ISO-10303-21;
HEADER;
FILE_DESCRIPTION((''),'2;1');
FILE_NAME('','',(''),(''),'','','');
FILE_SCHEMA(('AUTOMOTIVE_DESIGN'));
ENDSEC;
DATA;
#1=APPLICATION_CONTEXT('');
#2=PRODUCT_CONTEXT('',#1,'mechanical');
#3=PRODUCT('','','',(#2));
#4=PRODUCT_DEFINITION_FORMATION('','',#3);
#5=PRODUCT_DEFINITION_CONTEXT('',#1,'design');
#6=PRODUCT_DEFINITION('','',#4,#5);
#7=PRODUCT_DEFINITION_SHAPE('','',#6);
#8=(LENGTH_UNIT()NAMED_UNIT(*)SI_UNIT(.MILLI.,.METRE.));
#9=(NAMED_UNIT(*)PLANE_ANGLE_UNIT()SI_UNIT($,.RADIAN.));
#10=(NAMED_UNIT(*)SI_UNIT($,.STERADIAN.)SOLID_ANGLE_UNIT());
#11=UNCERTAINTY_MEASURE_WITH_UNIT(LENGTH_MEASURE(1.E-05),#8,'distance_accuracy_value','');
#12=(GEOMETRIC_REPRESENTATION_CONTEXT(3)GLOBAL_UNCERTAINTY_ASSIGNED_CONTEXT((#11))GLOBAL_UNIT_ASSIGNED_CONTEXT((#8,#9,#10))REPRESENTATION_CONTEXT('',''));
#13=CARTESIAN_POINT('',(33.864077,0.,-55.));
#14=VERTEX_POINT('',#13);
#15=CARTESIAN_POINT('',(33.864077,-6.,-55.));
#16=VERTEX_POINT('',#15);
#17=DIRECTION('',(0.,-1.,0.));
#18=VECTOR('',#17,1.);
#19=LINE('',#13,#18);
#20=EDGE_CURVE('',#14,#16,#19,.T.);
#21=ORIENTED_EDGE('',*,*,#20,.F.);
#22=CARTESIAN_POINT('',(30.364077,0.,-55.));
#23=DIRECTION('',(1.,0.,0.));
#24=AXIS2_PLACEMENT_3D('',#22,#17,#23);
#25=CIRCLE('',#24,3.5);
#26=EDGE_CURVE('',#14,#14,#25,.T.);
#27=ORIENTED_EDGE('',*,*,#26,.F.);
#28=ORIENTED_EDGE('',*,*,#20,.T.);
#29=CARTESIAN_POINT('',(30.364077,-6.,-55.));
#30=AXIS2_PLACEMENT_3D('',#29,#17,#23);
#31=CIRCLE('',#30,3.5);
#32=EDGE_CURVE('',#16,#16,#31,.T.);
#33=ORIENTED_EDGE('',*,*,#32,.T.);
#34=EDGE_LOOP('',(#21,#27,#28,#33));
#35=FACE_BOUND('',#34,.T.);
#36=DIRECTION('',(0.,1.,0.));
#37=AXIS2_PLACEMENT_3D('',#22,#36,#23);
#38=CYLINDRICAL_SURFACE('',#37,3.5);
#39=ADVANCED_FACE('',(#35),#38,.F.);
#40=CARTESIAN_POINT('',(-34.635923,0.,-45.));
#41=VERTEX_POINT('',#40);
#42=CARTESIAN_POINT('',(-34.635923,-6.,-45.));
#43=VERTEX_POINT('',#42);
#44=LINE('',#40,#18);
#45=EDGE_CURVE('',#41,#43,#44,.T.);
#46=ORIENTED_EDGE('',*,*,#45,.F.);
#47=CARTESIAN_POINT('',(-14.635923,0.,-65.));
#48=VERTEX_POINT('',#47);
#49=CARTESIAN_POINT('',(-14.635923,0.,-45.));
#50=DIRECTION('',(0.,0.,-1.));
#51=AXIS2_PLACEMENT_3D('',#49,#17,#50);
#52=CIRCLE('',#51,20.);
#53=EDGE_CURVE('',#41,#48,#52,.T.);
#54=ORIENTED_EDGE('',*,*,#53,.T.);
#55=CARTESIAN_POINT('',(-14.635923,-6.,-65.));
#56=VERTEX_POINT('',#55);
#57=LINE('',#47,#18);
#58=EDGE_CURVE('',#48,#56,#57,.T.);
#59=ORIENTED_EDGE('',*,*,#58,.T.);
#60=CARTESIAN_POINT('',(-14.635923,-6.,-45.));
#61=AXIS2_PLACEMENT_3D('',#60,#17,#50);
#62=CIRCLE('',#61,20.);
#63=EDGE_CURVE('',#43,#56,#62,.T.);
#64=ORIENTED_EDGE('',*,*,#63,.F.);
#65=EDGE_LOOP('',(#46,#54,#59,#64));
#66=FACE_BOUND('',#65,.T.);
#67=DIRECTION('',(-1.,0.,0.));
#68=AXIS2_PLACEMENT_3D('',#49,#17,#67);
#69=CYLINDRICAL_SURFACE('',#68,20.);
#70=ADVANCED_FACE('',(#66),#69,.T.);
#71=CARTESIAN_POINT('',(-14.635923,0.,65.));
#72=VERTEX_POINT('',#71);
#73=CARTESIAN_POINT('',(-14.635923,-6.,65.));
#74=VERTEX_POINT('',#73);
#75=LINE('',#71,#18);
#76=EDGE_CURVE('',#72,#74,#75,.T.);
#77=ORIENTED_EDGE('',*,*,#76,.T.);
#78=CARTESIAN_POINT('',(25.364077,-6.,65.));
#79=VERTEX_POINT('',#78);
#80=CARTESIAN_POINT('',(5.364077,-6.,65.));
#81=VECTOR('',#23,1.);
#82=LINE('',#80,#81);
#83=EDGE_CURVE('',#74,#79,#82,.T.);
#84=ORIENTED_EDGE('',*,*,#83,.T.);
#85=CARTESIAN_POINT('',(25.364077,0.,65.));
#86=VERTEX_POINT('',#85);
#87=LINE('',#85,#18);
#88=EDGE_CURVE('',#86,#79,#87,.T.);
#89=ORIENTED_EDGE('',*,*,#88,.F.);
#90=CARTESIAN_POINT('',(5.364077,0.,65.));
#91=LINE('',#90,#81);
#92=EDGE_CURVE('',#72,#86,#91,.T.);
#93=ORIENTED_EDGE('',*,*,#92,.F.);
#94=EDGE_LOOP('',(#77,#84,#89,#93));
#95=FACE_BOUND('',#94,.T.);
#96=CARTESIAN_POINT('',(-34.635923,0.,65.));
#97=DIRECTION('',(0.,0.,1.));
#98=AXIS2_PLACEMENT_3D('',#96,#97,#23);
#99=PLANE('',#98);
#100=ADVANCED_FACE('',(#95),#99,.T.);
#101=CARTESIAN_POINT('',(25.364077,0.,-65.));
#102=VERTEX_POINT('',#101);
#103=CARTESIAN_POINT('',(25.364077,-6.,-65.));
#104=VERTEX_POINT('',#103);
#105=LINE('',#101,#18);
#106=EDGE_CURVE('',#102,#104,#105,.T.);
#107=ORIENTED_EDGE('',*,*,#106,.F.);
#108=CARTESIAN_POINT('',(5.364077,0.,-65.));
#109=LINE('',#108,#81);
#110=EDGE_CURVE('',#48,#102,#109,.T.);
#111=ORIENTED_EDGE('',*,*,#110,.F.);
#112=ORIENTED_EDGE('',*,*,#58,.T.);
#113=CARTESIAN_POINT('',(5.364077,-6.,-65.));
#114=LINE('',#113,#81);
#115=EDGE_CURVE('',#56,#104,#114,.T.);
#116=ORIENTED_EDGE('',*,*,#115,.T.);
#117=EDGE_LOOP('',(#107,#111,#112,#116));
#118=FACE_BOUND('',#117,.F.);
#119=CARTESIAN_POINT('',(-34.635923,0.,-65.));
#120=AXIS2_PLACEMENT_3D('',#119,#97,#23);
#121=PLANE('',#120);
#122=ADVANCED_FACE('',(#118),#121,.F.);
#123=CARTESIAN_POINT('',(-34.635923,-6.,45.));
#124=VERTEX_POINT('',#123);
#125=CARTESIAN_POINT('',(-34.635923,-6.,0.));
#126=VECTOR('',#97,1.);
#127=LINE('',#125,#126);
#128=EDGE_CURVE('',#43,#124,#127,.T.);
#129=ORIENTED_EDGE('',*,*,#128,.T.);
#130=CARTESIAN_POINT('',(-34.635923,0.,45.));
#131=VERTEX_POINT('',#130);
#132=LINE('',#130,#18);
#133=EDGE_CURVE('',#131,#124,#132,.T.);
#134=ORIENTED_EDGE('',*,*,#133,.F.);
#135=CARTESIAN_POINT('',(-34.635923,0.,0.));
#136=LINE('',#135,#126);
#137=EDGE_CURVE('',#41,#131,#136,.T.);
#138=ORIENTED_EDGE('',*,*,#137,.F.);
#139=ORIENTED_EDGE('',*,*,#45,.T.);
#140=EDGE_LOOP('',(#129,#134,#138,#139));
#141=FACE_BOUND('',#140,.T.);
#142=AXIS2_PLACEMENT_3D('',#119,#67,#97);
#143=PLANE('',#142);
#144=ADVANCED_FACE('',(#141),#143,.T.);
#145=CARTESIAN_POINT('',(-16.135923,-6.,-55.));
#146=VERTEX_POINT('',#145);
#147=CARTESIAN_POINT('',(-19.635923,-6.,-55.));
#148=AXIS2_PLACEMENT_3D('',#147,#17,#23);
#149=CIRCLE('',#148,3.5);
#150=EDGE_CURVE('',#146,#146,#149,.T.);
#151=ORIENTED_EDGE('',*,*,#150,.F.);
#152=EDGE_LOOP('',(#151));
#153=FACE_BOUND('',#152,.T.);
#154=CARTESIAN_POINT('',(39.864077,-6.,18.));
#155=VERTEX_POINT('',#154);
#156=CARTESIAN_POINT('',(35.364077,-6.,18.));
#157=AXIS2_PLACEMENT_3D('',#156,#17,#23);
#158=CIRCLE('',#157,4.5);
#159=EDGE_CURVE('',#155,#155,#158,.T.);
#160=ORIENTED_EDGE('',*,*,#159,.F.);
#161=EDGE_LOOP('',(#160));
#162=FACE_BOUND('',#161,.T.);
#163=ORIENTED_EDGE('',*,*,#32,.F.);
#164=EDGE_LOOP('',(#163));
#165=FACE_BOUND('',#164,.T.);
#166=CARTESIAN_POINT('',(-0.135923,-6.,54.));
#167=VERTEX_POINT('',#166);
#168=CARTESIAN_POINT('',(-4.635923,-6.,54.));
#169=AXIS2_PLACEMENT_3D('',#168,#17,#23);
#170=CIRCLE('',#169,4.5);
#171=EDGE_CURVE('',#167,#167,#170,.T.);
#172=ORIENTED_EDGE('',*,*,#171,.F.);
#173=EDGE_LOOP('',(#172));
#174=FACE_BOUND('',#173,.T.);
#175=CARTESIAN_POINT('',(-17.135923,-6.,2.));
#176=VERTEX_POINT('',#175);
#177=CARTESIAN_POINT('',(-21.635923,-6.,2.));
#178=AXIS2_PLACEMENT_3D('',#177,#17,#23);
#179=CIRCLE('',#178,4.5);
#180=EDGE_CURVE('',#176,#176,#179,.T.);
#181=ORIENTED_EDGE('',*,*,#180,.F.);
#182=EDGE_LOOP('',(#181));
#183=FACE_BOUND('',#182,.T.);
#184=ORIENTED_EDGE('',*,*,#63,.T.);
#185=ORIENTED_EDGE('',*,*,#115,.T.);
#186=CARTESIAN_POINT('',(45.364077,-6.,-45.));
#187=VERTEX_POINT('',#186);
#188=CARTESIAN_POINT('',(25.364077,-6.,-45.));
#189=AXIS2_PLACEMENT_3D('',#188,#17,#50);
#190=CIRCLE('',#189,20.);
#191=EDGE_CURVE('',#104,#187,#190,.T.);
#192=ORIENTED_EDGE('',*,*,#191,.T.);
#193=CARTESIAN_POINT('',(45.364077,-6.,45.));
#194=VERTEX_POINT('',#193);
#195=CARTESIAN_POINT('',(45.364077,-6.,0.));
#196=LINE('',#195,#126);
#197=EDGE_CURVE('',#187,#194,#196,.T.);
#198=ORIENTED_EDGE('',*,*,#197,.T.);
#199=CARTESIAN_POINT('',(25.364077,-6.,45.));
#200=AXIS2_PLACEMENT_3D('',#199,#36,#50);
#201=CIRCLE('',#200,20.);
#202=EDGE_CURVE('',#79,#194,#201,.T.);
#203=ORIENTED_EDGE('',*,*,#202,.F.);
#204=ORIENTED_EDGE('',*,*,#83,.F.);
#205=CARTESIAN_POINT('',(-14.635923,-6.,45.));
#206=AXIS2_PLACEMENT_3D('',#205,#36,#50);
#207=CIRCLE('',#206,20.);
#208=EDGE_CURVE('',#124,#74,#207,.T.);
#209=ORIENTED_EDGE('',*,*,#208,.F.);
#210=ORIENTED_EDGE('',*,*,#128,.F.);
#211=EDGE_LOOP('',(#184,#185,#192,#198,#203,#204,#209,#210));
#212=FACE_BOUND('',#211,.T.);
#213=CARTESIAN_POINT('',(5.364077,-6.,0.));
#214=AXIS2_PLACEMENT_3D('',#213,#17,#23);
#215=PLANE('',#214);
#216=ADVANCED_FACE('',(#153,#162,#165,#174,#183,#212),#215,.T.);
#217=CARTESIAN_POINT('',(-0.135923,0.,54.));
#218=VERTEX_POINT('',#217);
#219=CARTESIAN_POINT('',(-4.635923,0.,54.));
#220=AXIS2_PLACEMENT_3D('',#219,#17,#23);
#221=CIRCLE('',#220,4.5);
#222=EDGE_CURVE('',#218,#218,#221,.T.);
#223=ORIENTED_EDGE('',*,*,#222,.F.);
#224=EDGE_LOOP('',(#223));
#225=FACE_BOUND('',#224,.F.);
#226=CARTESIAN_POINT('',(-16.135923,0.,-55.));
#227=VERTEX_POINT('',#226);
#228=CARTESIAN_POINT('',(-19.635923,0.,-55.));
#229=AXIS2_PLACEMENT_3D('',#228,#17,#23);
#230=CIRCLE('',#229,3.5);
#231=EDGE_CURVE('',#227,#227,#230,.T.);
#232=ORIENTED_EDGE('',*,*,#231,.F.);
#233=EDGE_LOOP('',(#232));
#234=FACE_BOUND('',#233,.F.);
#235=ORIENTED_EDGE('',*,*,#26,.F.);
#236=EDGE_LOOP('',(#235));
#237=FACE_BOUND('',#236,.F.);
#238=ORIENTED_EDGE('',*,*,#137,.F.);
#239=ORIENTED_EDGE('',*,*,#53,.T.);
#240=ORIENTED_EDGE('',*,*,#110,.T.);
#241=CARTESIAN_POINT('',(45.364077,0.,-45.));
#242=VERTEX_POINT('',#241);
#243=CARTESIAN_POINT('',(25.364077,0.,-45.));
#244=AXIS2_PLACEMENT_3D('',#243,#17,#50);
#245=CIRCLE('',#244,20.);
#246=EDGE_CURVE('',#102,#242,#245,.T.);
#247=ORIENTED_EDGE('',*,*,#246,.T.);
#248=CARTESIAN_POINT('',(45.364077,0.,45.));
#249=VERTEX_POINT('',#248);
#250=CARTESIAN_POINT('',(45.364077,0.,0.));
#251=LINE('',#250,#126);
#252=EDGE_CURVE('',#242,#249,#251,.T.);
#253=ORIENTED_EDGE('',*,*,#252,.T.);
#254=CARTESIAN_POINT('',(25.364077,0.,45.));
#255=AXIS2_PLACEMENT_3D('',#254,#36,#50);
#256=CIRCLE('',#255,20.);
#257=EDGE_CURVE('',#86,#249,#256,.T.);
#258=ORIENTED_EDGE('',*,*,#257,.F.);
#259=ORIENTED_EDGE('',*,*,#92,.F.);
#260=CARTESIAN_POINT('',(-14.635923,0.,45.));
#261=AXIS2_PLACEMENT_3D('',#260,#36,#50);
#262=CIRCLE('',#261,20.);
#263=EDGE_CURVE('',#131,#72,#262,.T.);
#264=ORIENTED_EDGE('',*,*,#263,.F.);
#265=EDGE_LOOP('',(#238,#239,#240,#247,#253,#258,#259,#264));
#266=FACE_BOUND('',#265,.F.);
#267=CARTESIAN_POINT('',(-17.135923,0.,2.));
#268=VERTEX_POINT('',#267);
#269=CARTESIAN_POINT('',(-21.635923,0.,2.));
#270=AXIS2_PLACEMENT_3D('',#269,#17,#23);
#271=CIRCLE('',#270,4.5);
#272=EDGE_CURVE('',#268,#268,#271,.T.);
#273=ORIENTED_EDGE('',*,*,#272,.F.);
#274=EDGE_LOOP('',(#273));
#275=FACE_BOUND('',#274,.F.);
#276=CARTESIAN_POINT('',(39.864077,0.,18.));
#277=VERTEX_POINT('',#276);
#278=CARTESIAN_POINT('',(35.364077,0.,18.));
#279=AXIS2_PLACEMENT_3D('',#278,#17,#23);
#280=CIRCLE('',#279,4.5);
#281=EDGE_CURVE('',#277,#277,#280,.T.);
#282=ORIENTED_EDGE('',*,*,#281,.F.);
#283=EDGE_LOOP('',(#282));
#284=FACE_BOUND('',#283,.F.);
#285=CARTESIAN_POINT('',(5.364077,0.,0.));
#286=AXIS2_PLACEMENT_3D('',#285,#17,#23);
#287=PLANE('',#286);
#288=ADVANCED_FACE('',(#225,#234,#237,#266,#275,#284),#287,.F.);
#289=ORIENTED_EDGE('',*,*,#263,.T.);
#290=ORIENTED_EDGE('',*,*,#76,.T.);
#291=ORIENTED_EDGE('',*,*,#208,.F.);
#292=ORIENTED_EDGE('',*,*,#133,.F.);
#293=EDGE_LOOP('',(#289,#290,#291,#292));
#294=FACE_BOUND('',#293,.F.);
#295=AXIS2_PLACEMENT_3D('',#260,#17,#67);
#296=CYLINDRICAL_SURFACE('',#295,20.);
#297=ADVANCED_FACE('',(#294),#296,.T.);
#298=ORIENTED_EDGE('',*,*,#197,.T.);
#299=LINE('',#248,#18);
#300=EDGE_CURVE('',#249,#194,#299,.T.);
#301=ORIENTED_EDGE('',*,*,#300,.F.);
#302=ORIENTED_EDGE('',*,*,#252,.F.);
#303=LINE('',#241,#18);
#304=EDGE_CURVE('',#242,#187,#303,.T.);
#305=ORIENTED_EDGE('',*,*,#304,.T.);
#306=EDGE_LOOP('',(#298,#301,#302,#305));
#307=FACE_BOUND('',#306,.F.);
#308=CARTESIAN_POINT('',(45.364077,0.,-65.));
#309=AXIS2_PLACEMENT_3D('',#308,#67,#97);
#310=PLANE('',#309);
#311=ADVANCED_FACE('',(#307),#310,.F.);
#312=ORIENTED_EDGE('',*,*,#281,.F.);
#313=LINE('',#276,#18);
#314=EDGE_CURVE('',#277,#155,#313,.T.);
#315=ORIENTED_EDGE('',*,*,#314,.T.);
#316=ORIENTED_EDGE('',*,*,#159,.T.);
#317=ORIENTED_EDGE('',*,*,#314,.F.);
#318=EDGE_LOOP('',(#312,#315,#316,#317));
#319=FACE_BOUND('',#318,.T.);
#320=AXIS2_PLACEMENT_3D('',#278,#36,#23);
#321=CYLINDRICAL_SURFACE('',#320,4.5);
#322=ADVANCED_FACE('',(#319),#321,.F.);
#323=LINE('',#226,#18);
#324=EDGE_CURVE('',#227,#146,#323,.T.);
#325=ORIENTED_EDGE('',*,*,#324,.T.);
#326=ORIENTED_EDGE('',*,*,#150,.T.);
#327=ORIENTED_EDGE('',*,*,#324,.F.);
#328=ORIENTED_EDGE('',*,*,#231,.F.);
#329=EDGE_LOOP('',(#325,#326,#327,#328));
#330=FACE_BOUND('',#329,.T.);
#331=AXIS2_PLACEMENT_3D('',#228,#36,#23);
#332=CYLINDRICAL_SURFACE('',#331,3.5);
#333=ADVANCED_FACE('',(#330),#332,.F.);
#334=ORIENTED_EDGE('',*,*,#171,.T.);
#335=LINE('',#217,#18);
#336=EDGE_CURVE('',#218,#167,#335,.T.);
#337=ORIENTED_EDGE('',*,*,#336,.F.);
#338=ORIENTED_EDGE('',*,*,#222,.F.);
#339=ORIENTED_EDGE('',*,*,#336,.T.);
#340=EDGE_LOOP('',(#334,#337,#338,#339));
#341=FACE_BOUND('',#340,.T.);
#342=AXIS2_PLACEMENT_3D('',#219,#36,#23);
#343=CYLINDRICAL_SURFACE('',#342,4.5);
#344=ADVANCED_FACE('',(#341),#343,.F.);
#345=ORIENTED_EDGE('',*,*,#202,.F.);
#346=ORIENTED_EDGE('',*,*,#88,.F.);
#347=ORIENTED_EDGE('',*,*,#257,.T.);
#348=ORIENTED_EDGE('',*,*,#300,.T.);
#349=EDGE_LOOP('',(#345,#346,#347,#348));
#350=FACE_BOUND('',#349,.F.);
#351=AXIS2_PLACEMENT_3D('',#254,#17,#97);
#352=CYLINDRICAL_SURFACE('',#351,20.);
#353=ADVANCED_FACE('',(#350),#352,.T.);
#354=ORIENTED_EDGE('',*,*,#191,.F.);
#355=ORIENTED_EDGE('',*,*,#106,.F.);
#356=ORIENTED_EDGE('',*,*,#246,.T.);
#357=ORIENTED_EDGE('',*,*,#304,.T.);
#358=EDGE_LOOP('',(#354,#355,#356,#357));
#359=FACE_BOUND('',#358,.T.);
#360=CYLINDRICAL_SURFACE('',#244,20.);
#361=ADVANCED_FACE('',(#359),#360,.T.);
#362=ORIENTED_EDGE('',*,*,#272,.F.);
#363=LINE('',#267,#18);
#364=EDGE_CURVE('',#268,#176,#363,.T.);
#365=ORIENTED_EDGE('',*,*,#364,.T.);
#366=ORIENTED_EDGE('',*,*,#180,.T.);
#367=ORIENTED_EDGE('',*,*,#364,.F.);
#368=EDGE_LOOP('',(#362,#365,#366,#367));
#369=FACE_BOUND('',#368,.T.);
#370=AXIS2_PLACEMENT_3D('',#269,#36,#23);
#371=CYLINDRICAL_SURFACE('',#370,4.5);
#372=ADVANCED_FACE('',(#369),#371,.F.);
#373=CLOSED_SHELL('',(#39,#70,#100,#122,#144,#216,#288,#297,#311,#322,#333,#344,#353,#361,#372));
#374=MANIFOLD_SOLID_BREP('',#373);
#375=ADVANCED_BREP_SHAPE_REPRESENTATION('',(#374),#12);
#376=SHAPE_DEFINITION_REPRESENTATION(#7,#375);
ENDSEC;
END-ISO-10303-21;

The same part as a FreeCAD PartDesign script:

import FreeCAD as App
import Part
import Sketcher
Q = App.Units.Quantity


def edges_at(feature, points):
    """Names of the edges that pass closest to the given points."""
    edges = feature.Shape.Edges
    near = lambda p: min(range(len(edges)), key=lambda i: edges[i].distToShape(Part.Vertex(*p))[0])
    return sorted({f"Edge{near(p) + 1}" for p in points})


def add_polygon(sketch, points):
    """Adds a closed chain of lines whose ends are joined by coincident constraints."""
    first, n = sketch.GeometryCount, len(points)
    for a, b in zip(points, points[1:] + points[:1]):
        sketch.addGeometry(Part.LineSegment(App.Vector(*a, 0), App.Vector(*b, 0)), False)
    for i in range(n):
        sketch.addConstraint(Sketcher.Constraint("Coincident", first + i, 2, first + (i + 1) % n, 1))

doc = App.newDocument("Part")
params = doc.addObject("Spreadsheet::Sheet", "Params")
for row, (alias, value) in enumerate([
    ("sketch1_diameter", "7 mm"),
    ("sketch1_diameter2", "9 mm"),
    ("sketch1_width", "80 mm"),
    ("sketch1_height", "130 mm"),
    ("pad1_length", "6 mm"),
    ("fillet_radius", "20 mm"),
], start=1):
    params.set(f"A{row}", alias)
    params.set(f"B{row}", "=" + value)
    params.setAlias(f"B{row}", alias)

body = doc.addObject("PartDesign::Body", "Body")

# Sketch on XZ plane
sketch1 = body.newObject("Sketcher::SketchObject", "Sketch")
sketch1.AttachmentSupport = (doc.getObject("XZ_Plane"), [""])
sketch1.MapMode = "FlatFace"
add_polygon(sketch1, [(-34.6, 65), (-34.6, -65), (45.4, -65), (45.4, 65)])  # lines 0-3
sketch1.addGeometry(Part.Circle(App.Vector(-19.6, -55, 0), App.Vector(0, 0, 1), 3.5), False)  # 4
sketch1.addGeometry(Part.Circle(App.Vector(30.4, -55, 0), App.Vector(0, 0, 1), 3.5), False)  # 5
sketch1.addGeometry(Part.Circle(App.Vector(-21.6, 2, 0), App.Vector(0, 0, 1), 4.5), False)  # 6
sketch1.addGeometry(Part.Circle(App.Vector(-4.6, 54, 0), App.Vector(0, 0, 1), 4.5), False)  # 7
sketch1.addGeometry(Part.Circle(App.Vector(35.4, 18, 0), App.Vector(0, 0, 1), 4.5), False)  # 8
sketch1.addConstraint([
    Sketcher.Constraint("Vertical", 0),
    Sketcher.Constraint("Horizontal", 1),
    Sketcher.Constraint("Vertical", 2),
    Sketcher.Constraint("Horizontal", 3),
    Sketcher.Constraint("Equal", 4, 5),
    Sketcher.Constraint("Equal", 6, 7),
    Sketcher.Constraint("Equal", 7, 8),
    Sketcher.Constraint("Horizontal", 4, 3, 5, 3),
    Sketcher.Constraint("Diameter", 4, Q("7 mm")),
    Sketcher.Constraint("Diameter", 6, Q("9 mm")),
    Sketcher.Constraint("DistanceX", 1, 1, 1, 2, Q("80 mm")),
    Sketcher.Constraint("DistanceY", 0, 2, 0, 1, Q("130 mm")),
    Sketcher.Constraint("DistanceY", 4, 3, -1, 1, Q("55 mm")),
    Sketcher.Constraint("DistanceY", -1, 1, 6, 3, Q("2 mm")),
    Sketcher.Constraint("DistanceY", -1, 1, 7, 3, Q("54 mm")),
    Sketcher.Constraint("DistanceY", -1, 1, 8, 3, Q("18 mm")),
    Sketcher.Constraint("DistanceY", 0, 2, -1, 1, Q("65 mm")),
    Sketcher.Constraint("DistanceX", 4, 3, 5, 3, Q("50 mm")),
    Sketcher.Constraint("DistanceX", 6, 3, 4, 3, Q("2 mm")),
    Sketcher.Constraint("DistanceX", 6, 3, 7, 3, Q("17 mm")),
    Sketcher.Constraint("DistanceX", 7, 3, 8, 3, Q("40 mm")),
    Sketcher.Constraint("DistanceX", 0, 2, 4, 3, Q("15 mm")),
    Sketcher.Constraint("DistanceX", 4, 3, -1, 1, Q("19.635923 mm")),
])
sketch1.setExpression("Constraints[12]", "Params.sketch1_diameter")
sketch1.setExpression("Constraints[13]", "Params.sketch1_diameter2")
sketch1.setExpression("Constraints[14]", "Params.sketch1_width")
sketch1.setExpression("Constraints[15]", "Params.sketch1_height")
pad1 = body.newObject("PartDesign::Pad", "Pad")
pad1.Profile = sketch1
pad1.setExpression("Length", "Params.pad1_length")
doc.recompute()

fillet = body.newObject("PartDesign::Fillet", "Fillet")
fillet.Base = (pad1, edges_at(pad1, [
    (45.364, -3, 65),
    (-34.636, -3, 65),
    (-34.636, -3, -65),
    (45.364, -3, -65),
]))
fillet.setExpression("Radius", "Params.fillet_radius")

doc.recompute()
